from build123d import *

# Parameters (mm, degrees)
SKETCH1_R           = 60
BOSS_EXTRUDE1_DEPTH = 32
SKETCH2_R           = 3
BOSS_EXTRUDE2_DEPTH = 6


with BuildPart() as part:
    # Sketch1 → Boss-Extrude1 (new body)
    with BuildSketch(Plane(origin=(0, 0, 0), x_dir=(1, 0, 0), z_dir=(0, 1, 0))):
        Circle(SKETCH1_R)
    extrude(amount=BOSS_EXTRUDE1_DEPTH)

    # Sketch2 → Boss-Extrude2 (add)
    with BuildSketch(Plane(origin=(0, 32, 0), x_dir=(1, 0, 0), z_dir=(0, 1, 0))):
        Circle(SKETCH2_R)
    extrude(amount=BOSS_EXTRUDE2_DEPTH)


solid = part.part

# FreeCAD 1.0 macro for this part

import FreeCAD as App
import Part
import Sketcher
Q = App.Units.Quantity

doc = App.newDocument("Part")
params = doc.addObject("Spreadsheet::Sheet", "Params")
for row, (alias, value) in enumerate([
    ("sketch1_diameter", "120 mm"),
    ("pad1_length", "32 mm"),
    ("sketch2_diameter", "6 mm"),
    ("pad2_length", "6 mm"),
], start=1):
    params.set(f"A{row}", alias)
    params.set(f"B{row}", "=" + value)
    params.setAlias(f"B{row}", alias)

body = doc.addObject("PartDesign::Body", "Body")

# Sketch on XZ plane
sketch1 = body.newObject("Sketcher::SketchObject", "Sketch")
sketch1.AttachmentSupport = (doc.getObject("XZ_Plane"), [""])
sketch1.MapMode = "FlatFace"
sketch1.addGeometry(Part.Circle(App.Vector(0, 0, 0), App.Vector(0, 0, 1), 60), False)
sketch1.addConstraint(Sketcher.Constraint("Coincident", 0, 3, -1, 1))
sketch1.addConstraint(Sketcher.Constraint("Diameter", 0, Q("120 mm")))
sketch1.setExpression("Constraints[1]", "Params.sketch1_diameter")
pad1 = body.newObject("PartDesign::Pad", "Pad")
pad1.Profile = sketch1
pad1.setExpression("Length", "Params.pad1_length")
pad1.Reversed = True

# Sketch on XZ plane
sketch2 = body.newObject("Sketcher::SketchObject", "Sketch001")
sketch2.AttachmentSupport = (doc.getObject("XZ_Plane"), [""])
sketch2.MapMode = "FlatFace"
sketch2.AttachmentOffset = App.Placement(App.Vector(0, 0, -32), App.Rotation())
sketch2.addGeometry(Part.Circle(App.Vector(0, 0, 0), App.Vector(0, 0, 1), 3), False)
sketch2.addConstraint(Sketcher.Constraint("Coincident", 0, 3, -1, 1))
sketch2.addConstraint(Sketcher.Constraint("Diameter", 0, Q("6 mm")))
sketch2.setExpression("Constraints[1]", "Params.sketch2_diameter")
pad2 = body.newObject("PartDesign::Pad", "Pad001")
pad2.Profile = sketch2
pad2.setExpression("Length", "Params.pad2_length")
pad2.Reversed = True

doc.recompute()
